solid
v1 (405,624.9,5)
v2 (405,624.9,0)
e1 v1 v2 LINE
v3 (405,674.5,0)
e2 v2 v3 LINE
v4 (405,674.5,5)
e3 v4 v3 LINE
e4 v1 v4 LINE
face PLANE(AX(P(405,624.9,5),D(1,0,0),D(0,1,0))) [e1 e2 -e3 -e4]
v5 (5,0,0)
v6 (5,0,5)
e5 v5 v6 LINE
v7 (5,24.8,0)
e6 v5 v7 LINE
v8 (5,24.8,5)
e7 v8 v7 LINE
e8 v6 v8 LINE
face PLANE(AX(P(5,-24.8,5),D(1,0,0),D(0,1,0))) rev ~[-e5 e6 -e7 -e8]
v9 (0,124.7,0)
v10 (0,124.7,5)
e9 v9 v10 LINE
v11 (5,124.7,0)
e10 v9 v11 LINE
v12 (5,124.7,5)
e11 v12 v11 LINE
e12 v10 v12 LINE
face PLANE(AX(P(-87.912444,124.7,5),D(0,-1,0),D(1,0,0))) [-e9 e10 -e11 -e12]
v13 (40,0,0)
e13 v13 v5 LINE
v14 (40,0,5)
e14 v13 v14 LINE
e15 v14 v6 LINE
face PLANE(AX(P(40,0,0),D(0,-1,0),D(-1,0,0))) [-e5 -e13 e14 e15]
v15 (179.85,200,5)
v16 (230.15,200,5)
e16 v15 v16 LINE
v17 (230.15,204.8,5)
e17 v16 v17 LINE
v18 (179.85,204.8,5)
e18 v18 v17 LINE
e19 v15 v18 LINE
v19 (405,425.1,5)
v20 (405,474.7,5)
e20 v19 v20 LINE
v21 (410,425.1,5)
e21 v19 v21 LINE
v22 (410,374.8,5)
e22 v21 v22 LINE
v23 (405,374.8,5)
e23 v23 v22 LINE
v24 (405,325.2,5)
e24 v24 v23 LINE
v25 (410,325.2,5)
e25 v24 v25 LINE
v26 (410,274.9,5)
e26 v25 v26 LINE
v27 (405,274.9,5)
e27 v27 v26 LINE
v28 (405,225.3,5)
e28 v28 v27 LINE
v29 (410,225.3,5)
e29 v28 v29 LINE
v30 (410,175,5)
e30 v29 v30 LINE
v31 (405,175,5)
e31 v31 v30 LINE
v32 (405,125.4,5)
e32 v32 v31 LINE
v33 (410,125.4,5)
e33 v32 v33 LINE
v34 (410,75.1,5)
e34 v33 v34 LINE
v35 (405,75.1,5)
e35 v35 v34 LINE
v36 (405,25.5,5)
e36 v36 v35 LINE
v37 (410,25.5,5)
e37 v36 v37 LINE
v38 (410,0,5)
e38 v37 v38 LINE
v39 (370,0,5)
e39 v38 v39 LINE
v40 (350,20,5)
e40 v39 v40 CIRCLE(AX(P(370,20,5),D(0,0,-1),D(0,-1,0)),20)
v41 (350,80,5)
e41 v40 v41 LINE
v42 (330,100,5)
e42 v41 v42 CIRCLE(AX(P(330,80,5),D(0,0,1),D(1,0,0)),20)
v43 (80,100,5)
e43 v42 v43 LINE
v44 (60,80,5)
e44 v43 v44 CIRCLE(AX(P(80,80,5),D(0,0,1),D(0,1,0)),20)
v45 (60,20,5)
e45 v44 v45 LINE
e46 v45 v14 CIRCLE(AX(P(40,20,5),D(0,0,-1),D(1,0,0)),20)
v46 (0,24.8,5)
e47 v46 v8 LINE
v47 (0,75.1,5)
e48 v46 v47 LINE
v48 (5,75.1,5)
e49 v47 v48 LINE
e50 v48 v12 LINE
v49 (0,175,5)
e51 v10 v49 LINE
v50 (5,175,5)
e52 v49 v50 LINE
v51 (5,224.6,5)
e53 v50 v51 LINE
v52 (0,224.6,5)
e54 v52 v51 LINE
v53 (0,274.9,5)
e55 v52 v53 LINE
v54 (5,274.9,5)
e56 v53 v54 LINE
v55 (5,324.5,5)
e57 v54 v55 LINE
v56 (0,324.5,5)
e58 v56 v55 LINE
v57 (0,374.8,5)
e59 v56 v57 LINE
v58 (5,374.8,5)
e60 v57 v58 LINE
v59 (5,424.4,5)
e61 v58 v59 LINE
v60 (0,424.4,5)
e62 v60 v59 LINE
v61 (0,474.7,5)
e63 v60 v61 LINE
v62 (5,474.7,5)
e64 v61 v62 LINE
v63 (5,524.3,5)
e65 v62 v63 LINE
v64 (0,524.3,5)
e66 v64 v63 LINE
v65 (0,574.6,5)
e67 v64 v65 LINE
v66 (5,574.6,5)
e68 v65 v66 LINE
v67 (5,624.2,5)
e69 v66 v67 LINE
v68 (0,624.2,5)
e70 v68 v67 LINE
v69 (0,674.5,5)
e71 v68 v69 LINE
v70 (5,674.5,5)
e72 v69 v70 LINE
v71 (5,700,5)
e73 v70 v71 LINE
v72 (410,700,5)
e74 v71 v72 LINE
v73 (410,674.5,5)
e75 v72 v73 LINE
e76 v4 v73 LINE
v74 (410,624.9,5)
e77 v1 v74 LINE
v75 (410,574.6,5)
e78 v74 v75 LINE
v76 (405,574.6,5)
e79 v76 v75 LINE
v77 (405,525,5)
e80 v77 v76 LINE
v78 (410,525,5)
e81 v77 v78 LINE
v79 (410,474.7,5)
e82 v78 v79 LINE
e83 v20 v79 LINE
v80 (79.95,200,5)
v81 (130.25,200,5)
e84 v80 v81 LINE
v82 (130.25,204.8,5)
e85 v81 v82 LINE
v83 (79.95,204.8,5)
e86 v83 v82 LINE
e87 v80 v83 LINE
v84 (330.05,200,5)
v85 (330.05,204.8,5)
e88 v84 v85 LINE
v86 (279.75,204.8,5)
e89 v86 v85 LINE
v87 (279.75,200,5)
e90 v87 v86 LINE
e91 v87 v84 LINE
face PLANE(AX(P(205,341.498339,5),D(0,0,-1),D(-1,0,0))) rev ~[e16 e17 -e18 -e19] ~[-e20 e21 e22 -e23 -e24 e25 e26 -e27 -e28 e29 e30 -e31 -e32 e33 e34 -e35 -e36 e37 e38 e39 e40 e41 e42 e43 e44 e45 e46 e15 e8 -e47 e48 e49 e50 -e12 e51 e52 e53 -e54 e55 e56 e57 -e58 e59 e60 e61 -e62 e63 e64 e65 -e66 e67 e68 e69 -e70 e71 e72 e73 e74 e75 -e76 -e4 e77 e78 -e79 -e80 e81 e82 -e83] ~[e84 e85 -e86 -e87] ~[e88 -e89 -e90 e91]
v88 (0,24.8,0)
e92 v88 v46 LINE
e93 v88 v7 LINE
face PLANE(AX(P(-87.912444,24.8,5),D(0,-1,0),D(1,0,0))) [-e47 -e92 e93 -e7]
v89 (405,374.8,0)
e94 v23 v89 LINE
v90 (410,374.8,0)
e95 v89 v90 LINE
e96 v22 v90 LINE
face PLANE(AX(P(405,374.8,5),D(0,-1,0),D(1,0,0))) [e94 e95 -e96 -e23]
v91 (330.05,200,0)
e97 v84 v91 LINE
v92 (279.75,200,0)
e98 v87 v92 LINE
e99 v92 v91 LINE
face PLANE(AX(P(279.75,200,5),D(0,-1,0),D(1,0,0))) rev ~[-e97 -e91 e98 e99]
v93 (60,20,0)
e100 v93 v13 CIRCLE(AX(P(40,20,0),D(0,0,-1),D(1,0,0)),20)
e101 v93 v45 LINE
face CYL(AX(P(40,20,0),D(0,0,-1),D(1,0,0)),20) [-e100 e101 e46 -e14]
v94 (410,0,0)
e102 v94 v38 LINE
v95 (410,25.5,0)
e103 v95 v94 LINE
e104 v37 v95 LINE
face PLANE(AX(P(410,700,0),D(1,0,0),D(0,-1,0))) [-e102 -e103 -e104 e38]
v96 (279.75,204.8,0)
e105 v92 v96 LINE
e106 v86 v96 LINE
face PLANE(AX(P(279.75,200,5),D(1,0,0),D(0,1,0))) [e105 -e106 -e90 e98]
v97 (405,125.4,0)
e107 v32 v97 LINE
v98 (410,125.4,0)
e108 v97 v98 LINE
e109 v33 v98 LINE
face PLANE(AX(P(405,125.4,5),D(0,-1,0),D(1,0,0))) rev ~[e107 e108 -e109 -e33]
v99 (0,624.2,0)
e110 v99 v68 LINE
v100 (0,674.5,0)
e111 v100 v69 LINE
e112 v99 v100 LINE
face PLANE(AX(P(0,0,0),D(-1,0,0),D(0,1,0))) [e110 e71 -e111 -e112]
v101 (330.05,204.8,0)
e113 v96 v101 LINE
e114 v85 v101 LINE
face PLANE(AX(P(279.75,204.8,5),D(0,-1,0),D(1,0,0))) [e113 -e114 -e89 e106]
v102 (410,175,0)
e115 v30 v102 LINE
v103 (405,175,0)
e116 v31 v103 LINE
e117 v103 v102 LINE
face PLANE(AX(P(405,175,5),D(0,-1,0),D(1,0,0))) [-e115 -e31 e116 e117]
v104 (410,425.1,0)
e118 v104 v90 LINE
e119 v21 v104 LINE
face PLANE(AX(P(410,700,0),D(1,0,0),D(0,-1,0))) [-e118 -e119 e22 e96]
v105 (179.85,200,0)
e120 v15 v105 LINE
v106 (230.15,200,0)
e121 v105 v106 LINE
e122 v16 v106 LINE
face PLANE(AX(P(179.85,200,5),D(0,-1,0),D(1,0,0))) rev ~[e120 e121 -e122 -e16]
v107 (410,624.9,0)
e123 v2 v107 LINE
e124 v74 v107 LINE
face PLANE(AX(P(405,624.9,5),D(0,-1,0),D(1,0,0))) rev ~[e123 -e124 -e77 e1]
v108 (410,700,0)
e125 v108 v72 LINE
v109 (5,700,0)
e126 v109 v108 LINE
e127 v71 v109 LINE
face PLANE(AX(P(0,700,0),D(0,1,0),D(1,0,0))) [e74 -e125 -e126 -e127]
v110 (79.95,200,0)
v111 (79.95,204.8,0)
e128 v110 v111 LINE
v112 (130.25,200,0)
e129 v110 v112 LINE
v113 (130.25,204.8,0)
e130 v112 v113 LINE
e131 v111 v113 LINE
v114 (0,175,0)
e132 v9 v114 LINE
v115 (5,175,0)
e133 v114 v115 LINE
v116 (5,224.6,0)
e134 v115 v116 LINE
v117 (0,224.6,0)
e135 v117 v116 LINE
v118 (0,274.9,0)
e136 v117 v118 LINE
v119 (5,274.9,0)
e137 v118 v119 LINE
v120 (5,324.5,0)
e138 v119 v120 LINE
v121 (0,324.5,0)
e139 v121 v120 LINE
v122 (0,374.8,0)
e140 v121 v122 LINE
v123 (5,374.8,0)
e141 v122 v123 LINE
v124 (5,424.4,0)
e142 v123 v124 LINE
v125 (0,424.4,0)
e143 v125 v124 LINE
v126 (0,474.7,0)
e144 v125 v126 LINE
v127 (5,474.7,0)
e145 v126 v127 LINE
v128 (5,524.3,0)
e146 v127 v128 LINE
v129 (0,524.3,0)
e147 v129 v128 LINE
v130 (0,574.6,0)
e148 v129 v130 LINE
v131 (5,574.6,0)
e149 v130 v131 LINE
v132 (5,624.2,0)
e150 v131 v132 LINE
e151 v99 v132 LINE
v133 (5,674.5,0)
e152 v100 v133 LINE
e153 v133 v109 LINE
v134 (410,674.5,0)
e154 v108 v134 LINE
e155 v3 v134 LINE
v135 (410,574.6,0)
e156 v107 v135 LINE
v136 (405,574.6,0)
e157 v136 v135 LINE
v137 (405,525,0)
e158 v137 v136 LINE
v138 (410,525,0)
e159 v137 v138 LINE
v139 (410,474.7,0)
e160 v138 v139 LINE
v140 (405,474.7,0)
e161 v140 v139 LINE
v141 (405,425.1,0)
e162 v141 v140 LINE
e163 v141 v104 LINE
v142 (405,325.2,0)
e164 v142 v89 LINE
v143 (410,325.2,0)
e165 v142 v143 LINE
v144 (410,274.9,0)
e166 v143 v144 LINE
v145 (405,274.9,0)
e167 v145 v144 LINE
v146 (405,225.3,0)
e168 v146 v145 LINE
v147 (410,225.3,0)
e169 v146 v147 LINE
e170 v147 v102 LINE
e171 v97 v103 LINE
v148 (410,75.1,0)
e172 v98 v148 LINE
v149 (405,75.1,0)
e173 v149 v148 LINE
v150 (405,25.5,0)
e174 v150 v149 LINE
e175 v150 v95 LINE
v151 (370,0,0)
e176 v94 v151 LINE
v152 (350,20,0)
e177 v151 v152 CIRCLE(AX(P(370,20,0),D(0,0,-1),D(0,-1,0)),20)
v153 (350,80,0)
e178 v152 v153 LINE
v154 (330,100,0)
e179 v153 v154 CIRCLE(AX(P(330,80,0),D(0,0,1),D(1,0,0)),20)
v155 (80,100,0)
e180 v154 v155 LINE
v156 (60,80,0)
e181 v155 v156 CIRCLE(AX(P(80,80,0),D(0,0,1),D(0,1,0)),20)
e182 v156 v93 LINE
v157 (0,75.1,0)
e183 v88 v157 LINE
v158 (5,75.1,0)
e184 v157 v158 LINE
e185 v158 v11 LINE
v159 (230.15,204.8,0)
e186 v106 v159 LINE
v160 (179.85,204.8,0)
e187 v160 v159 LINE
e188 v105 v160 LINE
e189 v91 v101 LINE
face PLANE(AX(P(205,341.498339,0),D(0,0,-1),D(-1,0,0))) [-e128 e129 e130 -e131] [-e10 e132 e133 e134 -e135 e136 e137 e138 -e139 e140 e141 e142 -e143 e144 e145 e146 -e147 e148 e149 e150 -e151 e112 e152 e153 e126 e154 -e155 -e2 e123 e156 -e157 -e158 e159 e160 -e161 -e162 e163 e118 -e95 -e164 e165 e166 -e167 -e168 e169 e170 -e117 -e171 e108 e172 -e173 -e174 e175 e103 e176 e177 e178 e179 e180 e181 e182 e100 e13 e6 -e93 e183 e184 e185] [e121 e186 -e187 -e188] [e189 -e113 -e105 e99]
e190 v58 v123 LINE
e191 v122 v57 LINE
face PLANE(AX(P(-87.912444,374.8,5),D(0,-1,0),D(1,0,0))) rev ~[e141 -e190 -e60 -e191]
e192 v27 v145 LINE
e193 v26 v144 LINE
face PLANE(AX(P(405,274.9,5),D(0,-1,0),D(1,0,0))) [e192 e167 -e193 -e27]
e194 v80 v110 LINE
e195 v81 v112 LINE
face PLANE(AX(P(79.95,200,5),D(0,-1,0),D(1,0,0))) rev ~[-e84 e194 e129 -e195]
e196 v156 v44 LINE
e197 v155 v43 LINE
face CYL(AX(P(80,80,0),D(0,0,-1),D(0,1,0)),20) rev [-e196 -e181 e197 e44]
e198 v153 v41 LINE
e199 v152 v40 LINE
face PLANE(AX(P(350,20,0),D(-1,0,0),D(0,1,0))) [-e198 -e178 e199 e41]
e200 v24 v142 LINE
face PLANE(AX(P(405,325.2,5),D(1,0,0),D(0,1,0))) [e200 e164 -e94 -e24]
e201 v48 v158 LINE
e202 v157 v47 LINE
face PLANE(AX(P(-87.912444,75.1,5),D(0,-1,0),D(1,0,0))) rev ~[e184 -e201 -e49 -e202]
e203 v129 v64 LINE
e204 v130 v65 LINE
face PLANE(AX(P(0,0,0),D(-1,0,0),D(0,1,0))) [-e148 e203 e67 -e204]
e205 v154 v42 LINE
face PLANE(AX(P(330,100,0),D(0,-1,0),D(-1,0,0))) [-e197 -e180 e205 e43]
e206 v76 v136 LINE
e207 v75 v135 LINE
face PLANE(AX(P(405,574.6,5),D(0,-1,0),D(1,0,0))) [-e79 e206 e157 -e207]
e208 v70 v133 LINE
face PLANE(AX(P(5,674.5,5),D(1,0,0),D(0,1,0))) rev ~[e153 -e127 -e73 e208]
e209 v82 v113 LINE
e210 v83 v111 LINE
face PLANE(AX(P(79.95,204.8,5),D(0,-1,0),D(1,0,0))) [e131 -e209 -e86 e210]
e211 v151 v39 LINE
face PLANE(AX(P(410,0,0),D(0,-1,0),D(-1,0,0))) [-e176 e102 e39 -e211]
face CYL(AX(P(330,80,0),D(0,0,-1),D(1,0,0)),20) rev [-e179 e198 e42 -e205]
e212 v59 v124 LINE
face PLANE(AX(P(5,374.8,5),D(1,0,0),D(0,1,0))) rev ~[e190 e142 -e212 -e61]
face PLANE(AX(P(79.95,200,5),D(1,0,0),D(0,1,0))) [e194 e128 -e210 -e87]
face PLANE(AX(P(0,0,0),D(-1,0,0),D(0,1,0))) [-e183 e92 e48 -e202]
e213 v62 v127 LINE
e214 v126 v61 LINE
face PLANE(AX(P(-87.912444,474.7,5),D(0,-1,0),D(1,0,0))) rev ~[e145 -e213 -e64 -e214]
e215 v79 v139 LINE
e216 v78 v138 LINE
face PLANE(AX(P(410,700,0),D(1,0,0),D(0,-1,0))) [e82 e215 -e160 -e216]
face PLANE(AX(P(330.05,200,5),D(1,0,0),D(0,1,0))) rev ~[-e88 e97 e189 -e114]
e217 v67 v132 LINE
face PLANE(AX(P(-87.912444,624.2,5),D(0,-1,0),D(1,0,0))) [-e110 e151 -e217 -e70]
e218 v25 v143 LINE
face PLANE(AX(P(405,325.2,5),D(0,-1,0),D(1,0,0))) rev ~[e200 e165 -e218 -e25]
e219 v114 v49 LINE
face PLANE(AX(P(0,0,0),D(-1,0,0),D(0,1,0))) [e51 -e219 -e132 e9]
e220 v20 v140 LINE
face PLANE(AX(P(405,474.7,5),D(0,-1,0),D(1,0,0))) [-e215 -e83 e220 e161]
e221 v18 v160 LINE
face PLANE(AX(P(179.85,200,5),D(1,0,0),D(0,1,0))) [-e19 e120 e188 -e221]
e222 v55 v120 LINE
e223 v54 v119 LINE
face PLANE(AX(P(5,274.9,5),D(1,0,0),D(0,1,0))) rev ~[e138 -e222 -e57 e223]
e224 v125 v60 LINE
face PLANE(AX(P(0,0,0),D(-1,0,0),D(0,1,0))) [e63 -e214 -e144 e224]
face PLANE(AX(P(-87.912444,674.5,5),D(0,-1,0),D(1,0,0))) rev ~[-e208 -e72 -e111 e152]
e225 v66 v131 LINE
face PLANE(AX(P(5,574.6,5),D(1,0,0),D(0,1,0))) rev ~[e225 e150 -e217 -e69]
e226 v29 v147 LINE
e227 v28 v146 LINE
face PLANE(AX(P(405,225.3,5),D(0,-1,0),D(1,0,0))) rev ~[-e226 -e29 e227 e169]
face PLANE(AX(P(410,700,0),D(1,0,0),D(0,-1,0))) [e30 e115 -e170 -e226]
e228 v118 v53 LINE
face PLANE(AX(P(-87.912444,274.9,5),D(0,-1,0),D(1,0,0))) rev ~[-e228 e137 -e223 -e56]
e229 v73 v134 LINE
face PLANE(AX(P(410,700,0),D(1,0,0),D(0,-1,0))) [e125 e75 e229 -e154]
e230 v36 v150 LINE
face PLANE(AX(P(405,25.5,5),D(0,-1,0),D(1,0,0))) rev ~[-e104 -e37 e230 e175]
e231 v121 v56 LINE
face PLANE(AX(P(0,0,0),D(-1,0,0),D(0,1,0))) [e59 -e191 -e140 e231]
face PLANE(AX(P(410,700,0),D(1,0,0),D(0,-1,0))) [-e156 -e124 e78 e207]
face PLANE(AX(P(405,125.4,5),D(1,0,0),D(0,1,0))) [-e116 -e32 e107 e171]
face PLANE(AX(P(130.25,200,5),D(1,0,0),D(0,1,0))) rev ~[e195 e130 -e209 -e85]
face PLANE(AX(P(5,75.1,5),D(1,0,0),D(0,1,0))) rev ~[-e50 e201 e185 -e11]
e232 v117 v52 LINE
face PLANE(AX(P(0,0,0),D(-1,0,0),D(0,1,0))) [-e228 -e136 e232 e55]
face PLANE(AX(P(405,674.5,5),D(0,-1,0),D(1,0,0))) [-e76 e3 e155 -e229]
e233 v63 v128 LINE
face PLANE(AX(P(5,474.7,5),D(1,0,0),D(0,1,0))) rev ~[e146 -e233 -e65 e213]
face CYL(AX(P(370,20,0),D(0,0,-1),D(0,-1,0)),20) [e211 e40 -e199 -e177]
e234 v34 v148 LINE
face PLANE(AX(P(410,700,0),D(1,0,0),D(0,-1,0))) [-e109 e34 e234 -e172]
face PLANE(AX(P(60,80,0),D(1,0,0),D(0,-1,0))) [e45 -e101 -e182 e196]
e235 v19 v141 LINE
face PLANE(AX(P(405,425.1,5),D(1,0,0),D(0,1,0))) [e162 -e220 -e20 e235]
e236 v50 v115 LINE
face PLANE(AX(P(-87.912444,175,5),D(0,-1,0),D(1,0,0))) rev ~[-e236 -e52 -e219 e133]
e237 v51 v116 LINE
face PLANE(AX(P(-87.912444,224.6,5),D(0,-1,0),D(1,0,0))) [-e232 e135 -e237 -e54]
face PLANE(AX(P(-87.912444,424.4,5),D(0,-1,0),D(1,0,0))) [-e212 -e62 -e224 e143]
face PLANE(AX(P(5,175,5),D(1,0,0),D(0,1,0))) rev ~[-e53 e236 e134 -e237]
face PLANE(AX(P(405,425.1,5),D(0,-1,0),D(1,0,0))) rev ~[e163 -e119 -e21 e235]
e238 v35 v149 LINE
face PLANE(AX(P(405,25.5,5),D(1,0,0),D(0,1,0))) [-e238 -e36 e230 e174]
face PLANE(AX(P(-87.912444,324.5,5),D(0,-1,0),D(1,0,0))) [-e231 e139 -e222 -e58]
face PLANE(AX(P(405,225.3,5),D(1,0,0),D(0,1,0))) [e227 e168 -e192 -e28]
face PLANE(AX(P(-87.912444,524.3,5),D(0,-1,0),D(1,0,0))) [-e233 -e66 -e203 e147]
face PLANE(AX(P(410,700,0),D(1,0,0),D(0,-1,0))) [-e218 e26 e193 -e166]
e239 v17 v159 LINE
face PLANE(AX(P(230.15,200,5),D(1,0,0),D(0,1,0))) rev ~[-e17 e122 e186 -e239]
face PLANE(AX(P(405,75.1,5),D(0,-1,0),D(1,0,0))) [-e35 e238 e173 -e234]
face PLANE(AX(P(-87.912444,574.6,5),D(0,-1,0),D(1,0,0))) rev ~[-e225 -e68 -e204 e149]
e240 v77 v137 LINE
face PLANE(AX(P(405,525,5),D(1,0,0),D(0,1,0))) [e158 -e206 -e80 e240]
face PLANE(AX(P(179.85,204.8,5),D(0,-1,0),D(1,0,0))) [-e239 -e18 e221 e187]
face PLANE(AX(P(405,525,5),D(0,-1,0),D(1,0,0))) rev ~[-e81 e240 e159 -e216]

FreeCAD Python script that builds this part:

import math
import FreeCAD as App
import Part
import Sketcher
from FreeCAD import Vector
Q = App.Units.Quantity


def add_polygon(sketch, points):
    """Adds a closed chain of lines whose ends are joined by coincident constraints."""
    first, n = sketch.GeometryCount, len(points)
    for a, b in zip(points, points[1:] + points[:1]):
        sketch.addGeometry(Part.LineSegment(App.Vector(*a, 0), App.Vector(*b, 0)), False)
    for i in range(n):
        sketch.addConstraint(Sketcher.Constraint("Coincident", first + i, 2, first + (i + 1) % n, 1))

doc = App.newDocument("Part")
body = doc.addObject("PartDesign::Body", "Body")

# Sketch on XY plane
sketch1 = body.newObject("Sketcher::SketchObject", "Sketch")
sketch1.AttachmentSupport = (doc.getObject("XY_Plane"), [""])
sketch1.MapMode = "FlatFace"
sketch1.addGeometry(Part.LineSegment(Vector(0, 700, 0), Vector(0, 0, 0)), False)
sketch1.addGeometry(Part.LineSegment(Vector(0, 0, 0), Vector(40, 0, 0)), False)
sketch1.addGeometry(Part.ArcOfCircle(Part.Circle(Vector(40, 20, 0), Vector(0, 0, 1), 20), math.radians(-90), math.radians(0)), False)
sketch1.addGeometry(Part.LineSegment(Vector(60, 20, 0), Vector(60, 80, 0)), False)
sketch1.addGeometry(Part.ArcOfCircle(Part.Circle(Vector(80, 80, 0), Vector(0, 0, 1), 20), math.radians(90), math.radians(180)), False)
sketch1.addGeometry(Part.LineSegment(Vector(80, 100, 0), Vector(330, 100, 0)), False)
sketch1.addGeometry(Part.ArcOfCircle(Part.Circle(Vector(330, 80, 0), Vector(0, 0, 1), 20), math.radians(0), math.radians(90)), False)
sketch1.addGeometry(Part.LineSegment(Vector(350, 80, 0), Vector(350, 20, 0)), False)
sketch1.addGeometry(Part.ArcOfCircle(Part.Circle(Vector(370, 20, 0), Vector(0, 0, 1), 20), math.radians(180), math.radians(270)), False)
sketch1.addGeometry(Part.LineSegment(Vector(370, 0, 0), Vector(410, 0, 0)), False)
sketch1.addGeometry(Part.LineSegment(Vector(410, 0, 0), Vector(410, 700, 0)), False)
sketch1.addGeometry(Part.LineSegment(Vector(410, 700, 0), Vector(0, 700, 0)), False)
sketch1.addConstraint(Sketcher.Constraint("Coincident", 0, 2, 1, 1))
sketch1.addConstraint(Sketcher.Constraint("Tangent", 1, 2, 2, 1))
sketch1.addConstraint(Sketcher.Constraint("Tangent", 2, 2, 3, 1))
sketch1.addConstraint(Sketcher.Constraint("Tangent", 3, 2, 4, 2))
sketch1.addConstraint(Sketcher.Constraint("Tangent", 4, 1, 5, 1))
sketch1.addConstraint(Sketcher.Constraint("Tangent", 5, 2, 6, 2))
sketch1.addConstraint(Sketcher.Constraint("Tangent", 6, 1, 7, 1))
sketch1.addConstraint(Sketcher.Constraint("Tangent", 7, 2, 8, 1))
sketch1.addConstraint(Sketcher.Constraint("Tangent", 8, 2, 9, 1))
sketch1.addConstraint(Sketcher.Constraint("Coincident", 9, 2, 10, 1))
sketch1.addConstraint(Sketcher.Constraint("Coincident", 10, 2, 11, 1))
sketch1.addConstraint(Sketcher.Constraint("Coincident", 11, 2, 0, 1))
sketch1.addConstraint(Sketcher.Constraint("Vertical", 0))
sketch1.addConstraint(Sketcher.Constraint("Horizontal", 1))
sketch1.addConstraint(Sketcher.Constraint("Vertical", 3))
sketch1.addConstraint(Sketcher.Constraint("Horizontal", 5))
sketch1.addConstraint(Sketcher.Constraint("Vertical", 7))
sketch1.addConstraint(Sketcher.Constraint("Horizontal", 9))
sketch1.addConstraint(Sketcher.Constraint("Vertical", 10))
sketch1.addConstraint(Sketcher.Constraint("Horizontal", 11))
sketch1.addConstraint(Sketcher.Constraint("Coincident", 0, 2, -1, 1))
sketch1.addConstraint(Sketcher.Constraint("Equal", 2, 4))
sketch1.addConstraint(Sketcher.Constraint("Equal", 4, 6))
sketch1.addConstraint(Sketcher.Constraint("Equal", 6, 8))
sketch1.addConstraint(Sketcher.Constraint("PointOnObject", 8, 2, -1))
sketch1.addConstraint(Sketcher.Constraint("Equal", 1, 9))
sketch1.addConstraint(Sketcher.Constraint("Radius", 2, Q("20 mm")))
sketch1.addConstraint(Sketcher.Constraint("DistanceX", 1, 1, 1, 2, Q("40 mm")))
sketch1.addConstraint(Sketcher.Constraint("DistanceX", 5, 1, 5, 2, Q("250 mm")))
sketch1.addConstraint(Sketcher.Constraint("DistanceY", 0, 2, 0, 1, Q("700 mm")))
sketch1.addConstraint(Sketcher.Constraint("DistanceY", 3, 1, 3, 2, Q("60 mm")))
pad1 = body.newObject("PartDesign::Pad", "Pad")
pad1.Profile = sketch1
pad1.Length = 5

# Sketch on XY plane
sketch2 = body.newObject("Sketcher::SketchObject", "Sketch001")
sketch2.AttachmentSupport = (doc.getObject("XY_Plane"), [""])
sketch2.MapMode = "FlatFace"
sketch2.AttachmentOffset = App.Placement(Vector(0, 0, 5), App.Rotation())
add_polygon(sketch2, [(80, 204.8), (80, 200), (130.2, 200), (130.2, 204.8)])  # lines 0-3
sketch2.addConstraint(Sketcher.Constraint("Vertical", 0))
sketch2.addConstraint(Sketcher.Constraint("Horizontal", 1))
sketch2.addConstraint(Sketcher.Constraint("Vertical", 2))
sketch2.addConstraint(Sketcher.Constraint("Horizontal", 3))
sketch2.addConstraint(Sketcher.Constraint("DistanceX", 1, 1, 1, 2, Q("50.3 mm")))
sketch2.addConstraint(Sketcher.Constraint("DistanceY", 0, 2, 0, 1, Q("4.8 mm")))
sketch2.addConstraint(Sketcher.Constraint("DistanceY", -1, 1, 0, 2, Q("200 mm")))
sketch2.addConstraint(Sketcher.Constraint("DistanceX", -1, 1, 0, 2, Q("79.95 mm")))
pocket1 = body.newObject("PartDesign::Pocket", "Pocket")
pocket1.Profile = sketch2
pocket1.Length = 5
doc.recompute()

linearpattern = body.newObject("PartDesign::LinearPattern", "LinearPattern")
linearpattern.Originals = [pocket1]
linearpattern.Direction = (doc.getObject("X_Axis"), [""])
linearpattern.Mode = "offset"
linearpattern.Offset = 99.9
linearpattern.Occurrences = 3
body.Tip = linearpattern

# Sketch on XY plane
sketch3 = body.newObject("Sketcher::SketchObject", "Sketch002")
sketch3.AttachmentSupport = (doc.getObject("XY_Plane"), [""])
sketch3.MapMode = "FlatFace"
sketch3.AttachmentOffset = App.Placement(Vector(0, 0, 5), App.Rotation())
add_polygon(sketch3, [(-88, 724), (-88, 674), (5, 674), (5, 724)])  # lines 0-3
sketch3.addConstraint(Sketcher.Constraint("Vertical", 0))
sketch3.addConstraint(Sketcher.Constraint("Horizontal", 1))
sketch3.addConstraint(Sketcher.Constraint("Vertical", 2))
sketch3.addConstraint(Sketcher.Constraint("Horizontal", 3))
sketch3.addConstraint(Sketcher.Constraint("DistanceY", 0, 2, 0, 1, Q("49.6 mm")))
sketch3.addConstraint(Sketcher.Constraint("DistanceX", -1, 1, 1, 2, Q("5 mm")))
sketch3.addConstraint(Sketcher.Constraint("DistanceY", -1, 1, 0, 2, Q("674.5 mm")))
sketch3.addConstraint(Sketcher.Constraint("DistanceX", 1, 1, 1, 2, Q("92.912444 mm")))
pocket2 = body.newObject("PartDesign::Pocket", "Pocket001")
pocket2.Profile = sketch3
pocket2.Length = 5
doc.recompute()

linearpattern2 = body.newObject("PartDesign::LinearPattern", "LinearPattern001")
linearpattern2.Originals = [pocket2]
linearpattern2.Direction = (doc.getObject("Y_Axis"), [""])
linearpattern2.Mode = "offset"
linearpattern2.Offset = 99.9
linearpattern2.Occurrences = 8
linearpattern2.Reversed = True
body.Tip = linearpattern2

# Sketch on XY plane
sketch4 = body.newObject("Sketcher::SketchObject", "Sketch003")
sketch4.AttachmentSupport = (doc.getObject("XY_Plane"), [""])
sketch4.MapMode = "FlatFace"
sketch4.AttachmentOffset = App.Placement(Vector(0, 0, 5), App.Rotation())
add_polygon(sketch4, [(405, 674), (405, 625), (491, 625), (491, 674)])  # lines 0-3
sketch4.addConstraint(Sketcher.Constraint("Vertical", 0))
sketch4.addConstraint(Sketcher.Constraint("Horizontal", 1))
sketch4.addConstraint(Sketcher.Constraint("Vertical", 2))
sketch4.addConstraint(Sketcher.Constraint("Horizontal", 3))
sketch4.addConstraint(Sketcher.Constraint("DistanceY", 0, 2, 0, 1, Q("49.6 mm")))
sketch4.addConstraint(Sketcher.Constraint("DistanceX", -1, 1, 0, 2, Q("405 mm")))
sketch4.addConstraint(Sketcher.Constraint("DistanceY", -1, 1, 0, 2, Q("624.9 mm")))
sketch4.addConstraint(Sketcher.Constraint("DistanceX", 1, 1, 1, 2, Q("86.468005 mm")))
pocket3 = body.newObject("PartDesign::Pocket", "Pocket002")
pocket3.Profile = sketch4
pocket3.Length = 5
doc.recompute()

linearpattern3 = body.newObject("PartDesign::LinearPattern", "LinearPattern002")
linearpattern3.Originals = [pocket3]
linearpattern3.Direction = (doc.getObject("Y_Axis"), [""])
linearpattern3.Mode = "offset"
linearpattern3.Offset = 99.9
linearpattern3.Occurrences = 7
linearpattern3.Reversed = True
body.Tip = linearpattern3

doc.recompute()
